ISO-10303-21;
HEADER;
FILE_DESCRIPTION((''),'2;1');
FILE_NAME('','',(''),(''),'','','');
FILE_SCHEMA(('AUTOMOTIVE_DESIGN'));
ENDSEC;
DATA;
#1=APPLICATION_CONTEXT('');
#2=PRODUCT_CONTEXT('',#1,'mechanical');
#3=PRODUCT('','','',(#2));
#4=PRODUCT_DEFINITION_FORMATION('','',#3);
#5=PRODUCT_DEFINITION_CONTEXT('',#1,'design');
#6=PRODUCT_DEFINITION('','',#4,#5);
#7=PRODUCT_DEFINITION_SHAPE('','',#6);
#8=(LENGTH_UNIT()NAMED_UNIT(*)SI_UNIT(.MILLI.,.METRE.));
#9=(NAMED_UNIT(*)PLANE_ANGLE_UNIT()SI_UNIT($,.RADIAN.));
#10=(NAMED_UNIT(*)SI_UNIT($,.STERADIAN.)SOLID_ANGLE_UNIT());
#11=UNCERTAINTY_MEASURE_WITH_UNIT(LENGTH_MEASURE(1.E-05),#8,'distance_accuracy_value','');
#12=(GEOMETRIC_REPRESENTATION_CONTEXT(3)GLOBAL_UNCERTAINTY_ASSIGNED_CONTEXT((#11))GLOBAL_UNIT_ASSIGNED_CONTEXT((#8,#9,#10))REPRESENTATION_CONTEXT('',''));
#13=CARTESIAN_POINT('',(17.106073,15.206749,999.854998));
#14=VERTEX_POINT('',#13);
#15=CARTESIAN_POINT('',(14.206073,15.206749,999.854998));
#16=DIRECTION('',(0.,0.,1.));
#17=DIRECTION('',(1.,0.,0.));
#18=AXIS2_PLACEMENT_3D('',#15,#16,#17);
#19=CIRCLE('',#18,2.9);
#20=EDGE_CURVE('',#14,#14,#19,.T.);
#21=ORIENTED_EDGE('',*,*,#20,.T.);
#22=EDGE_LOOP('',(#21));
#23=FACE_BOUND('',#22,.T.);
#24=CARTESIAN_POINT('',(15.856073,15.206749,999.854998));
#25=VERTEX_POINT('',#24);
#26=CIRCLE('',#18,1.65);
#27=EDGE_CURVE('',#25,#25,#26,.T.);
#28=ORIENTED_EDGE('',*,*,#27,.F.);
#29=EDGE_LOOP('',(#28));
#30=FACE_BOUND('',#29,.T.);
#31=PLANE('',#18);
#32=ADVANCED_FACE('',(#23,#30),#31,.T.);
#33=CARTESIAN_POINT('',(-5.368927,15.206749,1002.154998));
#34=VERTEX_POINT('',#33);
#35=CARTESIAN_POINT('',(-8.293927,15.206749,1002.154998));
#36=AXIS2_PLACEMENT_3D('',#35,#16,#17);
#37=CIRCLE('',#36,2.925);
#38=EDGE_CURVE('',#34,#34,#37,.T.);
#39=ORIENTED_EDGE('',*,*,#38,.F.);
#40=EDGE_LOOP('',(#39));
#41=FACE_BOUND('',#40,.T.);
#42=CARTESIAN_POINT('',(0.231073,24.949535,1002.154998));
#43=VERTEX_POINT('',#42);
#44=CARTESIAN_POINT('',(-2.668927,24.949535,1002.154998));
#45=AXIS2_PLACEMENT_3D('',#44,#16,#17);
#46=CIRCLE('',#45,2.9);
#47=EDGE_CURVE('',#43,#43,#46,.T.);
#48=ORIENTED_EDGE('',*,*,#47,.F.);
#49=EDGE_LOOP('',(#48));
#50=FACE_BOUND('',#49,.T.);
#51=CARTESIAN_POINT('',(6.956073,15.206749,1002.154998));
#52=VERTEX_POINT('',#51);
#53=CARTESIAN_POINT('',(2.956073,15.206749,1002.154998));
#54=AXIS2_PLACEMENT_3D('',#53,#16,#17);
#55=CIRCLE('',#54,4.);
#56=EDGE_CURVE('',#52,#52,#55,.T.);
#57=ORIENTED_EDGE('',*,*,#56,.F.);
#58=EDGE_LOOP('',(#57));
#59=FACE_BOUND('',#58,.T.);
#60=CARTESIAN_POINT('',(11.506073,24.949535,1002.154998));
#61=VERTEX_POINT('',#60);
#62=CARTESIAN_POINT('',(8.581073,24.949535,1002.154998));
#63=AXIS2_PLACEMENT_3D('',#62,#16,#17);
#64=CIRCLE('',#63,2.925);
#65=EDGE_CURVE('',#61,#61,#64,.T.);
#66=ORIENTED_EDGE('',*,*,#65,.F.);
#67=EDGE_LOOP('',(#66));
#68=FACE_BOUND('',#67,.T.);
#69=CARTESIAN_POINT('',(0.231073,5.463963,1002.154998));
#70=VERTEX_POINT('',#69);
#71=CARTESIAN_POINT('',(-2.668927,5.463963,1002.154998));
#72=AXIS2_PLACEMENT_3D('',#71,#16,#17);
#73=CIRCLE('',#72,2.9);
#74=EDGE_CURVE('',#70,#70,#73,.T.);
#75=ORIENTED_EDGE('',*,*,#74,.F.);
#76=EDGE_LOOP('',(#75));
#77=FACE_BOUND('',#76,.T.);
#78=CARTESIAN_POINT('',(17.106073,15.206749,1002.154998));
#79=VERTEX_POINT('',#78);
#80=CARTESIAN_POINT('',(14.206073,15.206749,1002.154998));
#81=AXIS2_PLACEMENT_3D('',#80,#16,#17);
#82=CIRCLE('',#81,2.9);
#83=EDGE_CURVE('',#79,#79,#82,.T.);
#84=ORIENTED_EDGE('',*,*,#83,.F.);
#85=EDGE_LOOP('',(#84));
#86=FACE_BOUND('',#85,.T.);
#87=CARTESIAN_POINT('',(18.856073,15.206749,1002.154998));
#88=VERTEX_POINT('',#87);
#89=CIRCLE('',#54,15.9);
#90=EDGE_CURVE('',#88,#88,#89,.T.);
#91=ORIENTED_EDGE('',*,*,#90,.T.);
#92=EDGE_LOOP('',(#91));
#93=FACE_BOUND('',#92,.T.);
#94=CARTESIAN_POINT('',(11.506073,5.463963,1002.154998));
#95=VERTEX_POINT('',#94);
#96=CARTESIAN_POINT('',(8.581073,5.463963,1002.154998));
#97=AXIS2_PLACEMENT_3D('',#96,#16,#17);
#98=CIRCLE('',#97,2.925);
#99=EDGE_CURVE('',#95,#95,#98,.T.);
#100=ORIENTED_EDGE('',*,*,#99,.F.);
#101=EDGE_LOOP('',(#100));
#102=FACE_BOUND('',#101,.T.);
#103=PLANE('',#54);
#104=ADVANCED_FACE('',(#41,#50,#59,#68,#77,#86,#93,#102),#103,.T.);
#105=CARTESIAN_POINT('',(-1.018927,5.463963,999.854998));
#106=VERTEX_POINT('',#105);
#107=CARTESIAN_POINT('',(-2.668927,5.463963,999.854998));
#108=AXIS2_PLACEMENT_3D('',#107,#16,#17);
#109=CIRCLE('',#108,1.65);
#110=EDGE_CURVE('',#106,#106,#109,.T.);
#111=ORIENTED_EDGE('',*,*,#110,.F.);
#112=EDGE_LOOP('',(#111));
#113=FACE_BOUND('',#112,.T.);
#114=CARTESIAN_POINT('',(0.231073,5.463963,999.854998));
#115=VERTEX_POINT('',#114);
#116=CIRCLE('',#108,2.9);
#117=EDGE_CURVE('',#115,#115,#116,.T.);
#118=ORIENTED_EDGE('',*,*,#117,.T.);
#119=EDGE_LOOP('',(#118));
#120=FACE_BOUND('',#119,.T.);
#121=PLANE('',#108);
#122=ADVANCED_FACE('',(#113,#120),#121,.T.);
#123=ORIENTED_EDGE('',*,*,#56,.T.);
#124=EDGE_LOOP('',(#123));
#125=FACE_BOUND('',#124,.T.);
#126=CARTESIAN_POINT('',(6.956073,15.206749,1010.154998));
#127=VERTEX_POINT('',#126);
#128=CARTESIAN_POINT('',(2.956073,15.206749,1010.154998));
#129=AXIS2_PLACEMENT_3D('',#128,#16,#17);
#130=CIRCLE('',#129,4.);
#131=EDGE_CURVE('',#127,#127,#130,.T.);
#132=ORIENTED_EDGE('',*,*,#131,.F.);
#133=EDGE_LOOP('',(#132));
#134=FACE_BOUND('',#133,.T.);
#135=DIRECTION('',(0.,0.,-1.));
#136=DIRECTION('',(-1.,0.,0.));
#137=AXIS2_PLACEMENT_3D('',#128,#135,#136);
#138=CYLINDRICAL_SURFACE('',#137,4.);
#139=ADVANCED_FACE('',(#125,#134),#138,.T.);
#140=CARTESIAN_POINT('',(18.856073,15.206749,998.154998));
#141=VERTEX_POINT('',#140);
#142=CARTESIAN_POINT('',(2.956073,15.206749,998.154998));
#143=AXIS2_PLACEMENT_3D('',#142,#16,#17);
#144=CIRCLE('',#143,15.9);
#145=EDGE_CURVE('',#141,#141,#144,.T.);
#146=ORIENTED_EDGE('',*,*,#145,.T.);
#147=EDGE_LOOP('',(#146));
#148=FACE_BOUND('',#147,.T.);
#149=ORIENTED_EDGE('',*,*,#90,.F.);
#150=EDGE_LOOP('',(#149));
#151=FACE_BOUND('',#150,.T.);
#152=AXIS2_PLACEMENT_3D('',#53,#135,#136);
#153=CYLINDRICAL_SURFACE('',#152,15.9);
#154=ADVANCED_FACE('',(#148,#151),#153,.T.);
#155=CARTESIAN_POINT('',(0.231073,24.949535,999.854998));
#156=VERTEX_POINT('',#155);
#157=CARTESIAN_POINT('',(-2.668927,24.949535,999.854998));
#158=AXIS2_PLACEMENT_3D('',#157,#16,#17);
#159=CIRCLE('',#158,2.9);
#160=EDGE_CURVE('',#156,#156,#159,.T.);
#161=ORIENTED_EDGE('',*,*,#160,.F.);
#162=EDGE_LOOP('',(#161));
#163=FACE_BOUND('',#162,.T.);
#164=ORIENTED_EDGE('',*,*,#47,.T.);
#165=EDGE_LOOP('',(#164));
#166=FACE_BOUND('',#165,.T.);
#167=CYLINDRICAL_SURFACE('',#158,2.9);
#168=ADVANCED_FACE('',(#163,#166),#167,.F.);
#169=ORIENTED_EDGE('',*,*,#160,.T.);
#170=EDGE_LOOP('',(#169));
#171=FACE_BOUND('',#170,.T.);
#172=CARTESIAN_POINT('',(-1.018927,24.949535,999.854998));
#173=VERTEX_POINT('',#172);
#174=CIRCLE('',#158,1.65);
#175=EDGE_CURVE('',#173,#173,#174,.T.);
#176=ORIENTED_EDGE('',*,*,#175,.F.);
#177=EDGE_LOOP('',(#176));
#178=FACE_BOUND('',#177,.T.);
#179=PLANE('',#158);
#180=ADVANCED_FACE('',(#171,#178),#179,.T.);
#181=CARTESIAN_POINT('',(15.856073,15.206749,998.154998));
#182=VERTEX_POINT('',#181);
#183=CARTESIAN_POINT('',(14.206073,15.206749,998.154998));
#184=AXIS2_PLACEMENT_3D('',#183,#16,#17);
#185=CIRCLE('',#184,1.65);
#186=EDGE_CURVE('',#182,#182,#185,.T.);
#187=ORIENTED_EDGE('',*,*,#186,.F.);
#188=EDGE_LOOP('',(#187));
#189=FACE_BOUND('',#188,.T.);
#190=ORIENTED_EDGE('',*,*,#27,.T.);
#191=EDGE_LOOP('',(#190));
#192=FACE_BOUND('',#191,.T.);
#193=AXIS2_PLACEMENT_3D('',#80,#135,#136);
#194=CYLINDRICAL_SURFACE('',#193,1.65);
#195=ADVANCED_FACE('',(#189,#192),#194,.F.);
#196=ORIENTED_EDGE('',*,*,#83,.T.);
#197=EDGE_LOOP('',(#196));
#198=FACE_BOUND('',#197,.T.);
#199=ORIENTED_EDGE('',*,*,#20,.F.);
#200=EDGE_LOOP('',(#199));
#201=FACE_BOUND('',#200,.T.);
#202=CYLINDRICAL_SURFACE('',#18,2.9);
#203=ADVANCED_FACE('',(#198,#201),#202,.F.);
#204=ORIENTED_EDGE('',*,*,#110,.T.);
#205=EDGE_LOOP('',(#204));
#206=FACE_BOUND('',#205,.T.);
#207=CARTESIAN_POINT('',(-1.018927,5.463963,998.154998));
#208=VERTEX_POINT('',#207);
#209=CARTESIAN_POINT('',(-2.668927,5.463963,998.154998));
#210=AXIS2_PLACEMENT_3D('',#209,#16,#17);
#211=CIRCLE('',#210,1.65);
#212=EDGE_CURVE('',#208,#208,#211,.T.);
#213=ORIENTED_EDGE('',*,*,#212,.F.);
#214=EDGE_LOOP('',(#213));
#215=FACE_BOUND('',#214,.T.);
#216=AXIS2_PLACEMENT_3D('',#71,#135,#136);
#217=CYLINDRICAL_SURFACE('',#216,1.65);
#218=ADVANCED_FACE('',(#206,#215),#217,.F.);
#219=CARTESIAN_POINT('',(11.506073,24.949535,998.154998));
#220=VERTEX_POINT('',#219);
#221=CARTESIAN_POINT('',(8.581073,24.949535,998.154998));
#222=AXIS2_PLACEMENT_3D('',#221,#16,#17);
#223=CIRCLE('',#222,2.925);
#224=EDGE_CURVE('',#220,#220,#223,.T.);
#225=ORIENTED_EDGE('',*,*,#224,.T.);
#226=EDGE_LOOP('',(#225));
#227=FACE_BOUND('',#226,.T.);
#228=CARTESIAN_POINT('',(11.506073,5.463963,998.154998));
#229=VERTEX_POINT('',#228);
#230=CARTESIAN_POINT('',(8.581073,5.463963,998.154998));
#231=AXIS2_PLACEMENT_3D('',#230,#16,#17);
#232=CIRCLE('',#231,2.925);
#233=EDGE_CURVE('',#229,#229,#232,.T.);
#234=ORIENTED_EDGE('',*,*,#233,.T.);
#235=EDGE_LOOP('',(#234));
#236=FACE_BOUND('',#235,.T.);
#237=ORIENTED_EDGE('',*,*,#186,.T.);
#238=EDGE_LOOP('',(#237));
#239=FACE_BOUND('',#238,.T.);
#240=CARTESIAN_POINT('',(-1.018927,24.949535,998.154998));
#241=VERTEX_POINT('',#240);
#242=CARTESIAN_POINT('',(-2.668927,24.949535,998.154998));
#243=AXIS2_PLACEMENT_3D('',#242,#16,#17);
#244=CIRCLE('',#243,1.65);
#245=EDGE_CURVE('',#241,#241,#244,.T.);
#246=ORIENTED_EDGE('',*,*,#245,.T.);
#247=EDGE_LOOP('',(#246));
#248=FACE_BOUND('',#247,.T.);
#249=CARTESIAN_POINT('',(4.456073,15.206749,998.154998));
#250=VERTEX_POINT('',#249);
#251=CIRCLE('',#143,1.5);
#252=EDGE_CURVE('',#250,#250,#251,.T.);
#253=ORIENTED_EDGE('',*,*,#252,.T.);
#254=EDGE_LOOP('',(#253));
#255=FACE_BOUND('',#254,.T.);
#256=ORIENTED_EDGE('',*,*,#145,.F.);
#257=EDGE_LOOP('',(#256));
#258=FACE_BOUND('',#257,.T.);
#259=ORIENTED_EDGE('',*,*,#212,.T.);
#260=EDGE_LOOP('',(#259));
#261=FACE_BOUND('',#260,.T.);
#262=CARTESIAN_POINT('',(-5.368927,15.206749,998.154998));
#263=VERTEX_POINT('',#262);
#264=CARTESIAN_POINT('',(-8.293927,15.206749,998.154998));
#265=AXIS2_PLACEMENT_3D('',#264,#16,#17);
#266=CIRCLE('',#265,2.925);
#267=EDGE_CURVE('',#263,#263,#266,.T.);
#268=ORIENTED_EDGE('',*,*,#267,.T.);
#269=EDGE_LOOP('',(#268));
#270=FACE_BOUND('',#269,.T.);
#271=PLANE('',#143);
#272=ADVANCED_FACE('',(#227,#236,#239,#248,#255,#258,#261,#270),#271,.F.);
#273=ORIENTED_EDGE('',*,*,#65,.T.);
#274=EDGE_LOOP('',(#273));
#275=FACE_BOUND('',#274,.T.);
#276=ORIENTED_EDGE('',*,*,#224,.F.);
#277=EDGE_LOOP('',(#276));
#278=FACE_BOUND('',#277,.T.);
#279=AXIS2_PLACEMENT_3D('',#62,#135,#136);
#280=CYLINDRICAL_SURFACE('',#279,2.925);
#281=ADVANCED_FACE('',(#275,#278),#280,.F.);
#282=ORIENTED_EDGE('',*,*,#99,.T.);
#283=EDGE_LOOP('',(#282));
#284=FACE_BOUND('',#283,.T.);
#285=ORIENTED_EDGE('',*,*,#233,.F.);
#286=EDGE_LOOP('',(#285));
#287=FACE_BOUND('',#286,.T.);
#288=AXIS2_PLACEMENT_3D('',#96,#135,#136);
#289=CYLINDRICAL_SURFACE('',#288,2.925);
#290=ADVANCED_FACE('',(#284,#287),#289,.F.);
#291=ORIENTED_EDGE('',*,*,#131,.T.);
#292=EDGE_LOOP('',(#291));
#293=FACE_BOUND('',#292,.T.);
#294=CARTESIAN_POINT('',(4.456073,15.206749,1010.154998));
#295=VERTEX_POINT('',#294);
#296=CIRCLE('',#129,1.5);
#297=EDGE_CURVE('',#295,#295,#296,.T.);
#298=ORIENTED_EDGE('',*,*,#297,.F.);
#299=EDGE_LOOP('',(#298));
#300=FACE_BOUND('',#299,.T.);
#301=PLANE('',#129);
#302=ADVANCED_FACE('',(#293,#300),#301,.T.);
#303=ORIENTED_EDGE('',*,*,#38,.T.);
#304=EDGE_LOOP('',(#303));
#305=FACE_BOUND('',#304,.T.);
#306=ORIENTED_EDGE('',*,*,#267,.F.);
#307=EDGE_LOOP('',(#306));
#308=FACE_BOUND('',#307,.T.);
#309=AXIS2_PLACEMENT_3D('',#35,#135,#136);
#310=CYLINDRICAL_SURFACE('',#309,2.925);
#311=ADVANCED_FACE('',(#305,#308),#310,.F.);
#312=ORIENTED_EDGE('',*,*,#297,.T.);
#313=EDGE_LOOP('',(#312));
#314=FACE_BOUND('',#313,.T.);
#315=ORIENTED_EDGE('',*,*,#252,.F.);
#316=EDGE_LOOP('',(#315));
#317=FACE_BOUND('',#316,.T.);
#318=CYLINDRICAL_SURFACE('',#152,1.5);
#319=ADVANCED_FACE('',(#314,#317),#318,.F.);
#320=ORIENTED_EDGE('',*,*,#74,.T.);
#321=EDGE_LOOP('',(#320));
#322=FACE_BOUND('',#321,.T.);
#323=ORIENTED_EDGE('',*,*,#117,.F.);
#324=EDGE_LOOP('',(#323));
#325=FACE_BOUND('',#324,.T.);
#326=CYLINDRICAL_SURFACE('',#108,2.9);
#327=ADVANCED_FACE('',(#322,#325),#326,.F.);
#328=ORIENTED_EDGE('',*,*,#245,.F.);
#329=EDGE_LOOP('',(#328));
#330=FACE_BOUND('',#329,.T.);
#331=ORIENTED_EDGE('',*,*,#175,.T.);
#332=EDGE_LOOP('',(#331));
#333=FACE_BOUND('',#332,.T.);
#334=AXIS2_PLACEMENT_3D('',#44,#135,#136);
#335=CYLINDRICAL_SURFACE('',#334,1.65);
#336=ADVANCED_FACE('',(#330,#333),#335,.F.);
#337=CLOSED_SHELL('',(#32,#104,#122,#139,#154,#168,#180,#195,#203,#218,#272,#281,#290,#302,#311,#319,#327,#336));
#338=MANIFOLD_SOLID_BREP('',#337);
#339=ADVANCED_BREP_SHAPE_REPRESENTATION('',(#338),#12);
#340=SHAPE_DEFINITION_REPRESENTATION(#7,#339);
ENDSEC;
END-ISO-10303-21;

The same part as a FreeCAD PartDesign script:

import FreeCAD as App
import Part
import Sketcher

V = App.Vector
Q = App.Units.Quantity

doc = App.newDocument("Part")
params = doc.addObject("Spreadsheet::Sheet", "Params")
for row, (alias, value) in enumerate([
    ("sketch1_diameter", "3 mm"),
    ("sketch1_diameter2", "31.8 mm"),
    ("sketch1_diameter3", "3.3 mm"),
    ("sketch1_diameter4", "5.85 mm"),
    ("pad1_length", "4 mm"),
    ("sketch2_diameter", "8 mm"),
    ("sketch2_diameter2", "3 mm"),
    ("pad2_length", "8 mm"),
    ("sketch3_diameter", "5.8 mm"),
    ("pocket1_length", "2.3 mm"),
], start=1):
    params.set(f"A{row}", alias)
    params.set(f"B{row}", "=" + value)
    params.setAlias(f"B{row}", alias)

body = doc.addObject("PartDesign::Body", "Body")

sketch1 = body.newObject("Sketcher::SketchObject", "Sketch")
sketch1.AttachmentSupport = (doc.getObject("XY_Plane"), [""])
sketch1.MapMode = "FlatFace"
sketch1.AttachmentOffset = App.Placement(V(0, 0, 998.154998), App.Rotation())
sketch1.addGeometry(Part.Circle(V(3, 15.2, 0), V(0, 0, 1), 15.9), False)
sketch1.addGeometry(Part.Circle(V(-2.7, 5.5, 0), V(0, 0, 1), 1.6), False)
sketch1.addGeometry(Part.Circle(V(8.6, 5.5, 0), V(0, 0, 1), 2.9), False)
sketch1.addGeometry(Part.Circle(V(-8.3, 15.2, 0), V(0, 0, 1), 2.9), False)
sketch1.addGeometry(Part.Circle(V(-2.7, 24.9, 0), V(0, 0, 1), 1.6), False)
sketch1.addGeometry(Part.Circle(V(3, 15.2, 0), V(0, 0, 1), 1.5), False)
sketch1.addGeometry(Part.Circle(V(14.2, 15.2, 0), V(0, 0, 1), 1.6), False)
sketch1.addGeometry(Part.Circle(V(8.6, 24.9, 0), V(0, 0, 1), 2.9), False)
sketch1.addConstraint(Sketcher.Constraint("Coincident", 5, 3, 0, 3))
sketch1.addConstraint(Sketcher.Constraint("Equal", 2, 3))
sketch1.addConstraint(Sketcher.Constraint("Equal", 1, 4))
sketch1.addConstraint(Sketcher.Constraint("Equal", 4, 6))
sketch1.addConstraint(Sketcher.Constraint("Equal", 3, 7))
sketch1.addConstraint(Sketcher.Constraint("Horizontal", 1, 3, 2, 3))
sketch1.addConstraint(Sketcher.Constraint("Horizontal", 0, 3, 3, 3))
sketch1.addConstraint(Sketcher.Constraint("Horizontal", 5, 3, 6, 3))
sketch1.addConstraint(Sketcher.Constraint("Horizontal", 4, 3, 7, 3))
sketch1.addConstraint(Sketcher.Constraint("Vertical", 1, 3, 4, 3))
sketch1.addConstraint(Sketcher.Constraint("Vertical", 2, 3, 7, 3))
sketch1.addConstraint(Sketcher.Constraint("Diameter", 5, Q("3 mm")))
sketch1.addConstraint(Sketcher.Constraint("Diameter", 0, Q("31.8 mm")))
sketch1.addConstraint(Sketcher.Constraint("Diameter", 1, Q("3.3 mm")))
sketch1.addConstraint(Sketcher.Constraint("Diameter", 2, Q("5.85 mm")))
sketch1.addConstraint(Sketcher.Constraint("DistanceX", 1, 3, 2, 3, Q("11.25 mm")))
sketch1.addConstraint(Sketcher.Constraint("DistanceX", 3, 3, 0, 3, Q("11.25 mm")))
sketch1.addConstraint(Sketcher.Constraint("DistanceX", 0, 3, 6, 3, Q("11.25 mm")))
sketch1.addConstraint(Sketcher.Constraint("DistanceX", 1, 3, 0, 3, Q("5.625 mm")))
sketch1.addConstraint(Sketcher.Constraint("DistanceY", -1, 1, 0, 3, Q("15.206749 mm")))
sketch1.addConstraint(Sketcher.Constraint("DistanceY", 1, 3, 4, 3, Q("19.485572 mm")))
sketch1.addConstraint(Sketcher.Constraint("DistanceX", -1, 1, 0, 3, Q("2.956073 mm")))
sketch1.addConstraint(Sketcher.Constraint("DistanceY", -1, 1, 1, 3, Q("5.463963 mm")))
sketch1.setExpression("Constraints[11]", "Params.sketch1_diameter")
sketch1.setExpression("Constraints[12]", "Params.sketch1_diameter2")
sketch1.setExpression("Constraints[13]", "Params.sketch1_diameter3")
sketch1.setExpression("Constraints[14]", "Params.sketch1_diameter4")
pad1 = body.newObject("PartDesign::Pad", "Pad")
pad1.Profile = sketch1
pad1.setExpression("Length", "Params.pad1_length")

sketch2 = body.newObject("Sketcher::SketchObject", "Sketch001")
sketch2.AttachmentSupport = (doc.getObject("XY_Plane"), [""])
sketch2.MapMode = "FlatFace"
sketch2.AttachmentOffset = App.Placement(V(0, 0, 1002.154998), App.Rotation())
sketch2.addGeometry(Part.Circle(V(3, 15.2, 0), V(0, 0, 1), 4), False)
sketch2.addGeometry(Part.Circle(V(3, 15.2, 0), V(0, 0, 1), 1.5), False)
sketch2.addConstraint(Sketcher.Constraint("Coincident", 1, 3, 0, 3))
sketch2.addConstraint(Sketcher.Constraint("Diameter", 0, Q("8 mm")))
sketch2.addConstraint(Sketcher.Constraint("Diameter", 1, Q("3 mm")))
sketch2.addConstraint(Sketcher.Constraint("DistanceY", -1, 1, 0, 3, Q("15.206749 mm")))
sketch2.addConstraint(Sketcher.Constraint("DistanceX", -1, 1, 0, 3, Q("2.956073 mm")))
sketch2.setExpression("Constraints[1]", "Params.sketch2_diameter")
sketch2.setExpression("Constraints[2]", "Params.sketch2_diameter2")
pad2 = body.newObject("PartDesign::Pad", "Pad001")
pad2.Profile = sketch2
pad2.setExpression("Length", "Params.pad2_length")

sketch3 = body.newObject("Sketcher::SketchObject", "Sketch002")
sketch3.AttachmentSupport = (doc.getObject("XY_Plane"), [""])
sketch3.MapMode = "FlatFace"
sketch3.AttachmentOffset = App.Placement(V(0, 0, 1002.154998), App.Rotation())
sketch3.addGeometry(Part.Circle(V(-2.7, 24.9, 0), V(0, 0, 1), 2.9), False)
sketch3.addGeometry(Part.Circle(V(14.2, 15.2, 0), V(0, 0, 1), 2.9), False)
sketch3.addGeometry(Part.Circle(V(-2.7, 5.5, 0), V(0, 0, 1), 2.9), False)
sketch3.addConstraint(Sketcher.Constraint("Equal", 0, 1))
sketch3.addConstraint(Sketcher.Constraint("Equal", 1, 2))
sketch3.addConstraint(Sketcher.Constraint("Vertical", 0, 3, 2, 3))
sketch3.addConstraint(Sketcher.Constraint("Diameter", 0, Q("5.8 mm")))
sketch3.addConstraint(Sketcher.Constraint("DistanceX", 0, 3, 1, 3, Q("16.875 mm")))
sketch3.addConstraint(Sketcher.Constraint("DistanceY", -1, 1, 1, 3, Q("15.206749 mm")))
sketch3.addConstraint(Sketcher.Constraint("DistanceY", 2, 3, 0, 3, Q("19.485572 mm")))
sketch3.addConstraint(Sketcher.Constraint("DistanceX", 0, 3, -1, 1, Q("2.668927 mm")))
sketch3.addConstraint(Sketcher.Constraint("DistanceY", -1, 1, 0, 3, Q("24.949535 mm")))
sketch3.setExpression("Constraints[3]", "Params.sketch3_diameter")
pocket1 = body.newObject("PartDesign::Pocket", "Pocket")
pocket1.Profile = sketch3
pocket1.setExpression("Length", "Params.pocket1_length")

doc.recompute()
